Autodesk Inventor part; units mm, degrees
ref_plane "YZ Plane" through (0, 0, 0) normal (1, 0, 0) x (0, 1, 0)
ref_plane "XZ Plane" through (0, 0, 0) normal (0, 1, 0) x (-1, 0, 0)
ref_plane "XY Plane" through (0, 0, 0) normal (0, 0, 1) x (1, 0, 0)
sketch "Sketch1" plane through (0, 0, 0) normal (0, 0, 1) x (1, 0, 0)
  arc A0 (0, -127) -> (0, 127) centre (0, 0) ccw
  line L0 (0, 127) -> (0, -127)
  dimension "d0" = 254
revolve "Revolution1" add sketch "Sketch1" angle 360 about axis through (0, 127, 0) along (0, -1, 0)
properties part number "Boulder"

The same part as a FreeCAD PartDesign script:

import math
import FreeCAD as App
import Part
import Sketcher
Q = App.Units.Quantity

doc = App.newDocument("Part")
body = doc.addObject("PartDesign::Body", "Body")

sketch1 = body.newObject("Sketcher::SketchObject", "Sketch")
sketch1.AttachmentSupport = (doc.getObject("XY_Plane"), [""])
sketch1.MapMode = "FlatFace"
sketch1.addGeometry([
    Part.LineSegment(App.Vector(0, 127, 0), App.Vector(0, -127, 0)),
    Part.ArcOfCircle(Part.Circle(App.Vector(0, 0, 0), App.Vector(0, 0, 1), 127), math.radians(-90), math.radians(90)),
], False)
sketch1.addConstraint([
    Sketcher.Constraint("Coincident", 0, 1, 1, 2),
    Sketcher.Constraint("Coincident", 1, 1, 0, 2),
    Sketcher.Constraint("Vertical", 0),
    Sketcher.Constraint("Coincident", 1, 3, -1, 1),
    Sketcher.Constraint("PointOnObject", 0, 1, -2),
    Sketcher.Constraint("Radius", 1, Q("5 in")),
])
revolution = body.newObject("PartDesign::Revolution", "Revolution")
revolution.Profile = sketch1
revolution.ReferenceAxis = (sketch1, ["V_Axis"])
revolution.Angle = 360

doc.recompute()
